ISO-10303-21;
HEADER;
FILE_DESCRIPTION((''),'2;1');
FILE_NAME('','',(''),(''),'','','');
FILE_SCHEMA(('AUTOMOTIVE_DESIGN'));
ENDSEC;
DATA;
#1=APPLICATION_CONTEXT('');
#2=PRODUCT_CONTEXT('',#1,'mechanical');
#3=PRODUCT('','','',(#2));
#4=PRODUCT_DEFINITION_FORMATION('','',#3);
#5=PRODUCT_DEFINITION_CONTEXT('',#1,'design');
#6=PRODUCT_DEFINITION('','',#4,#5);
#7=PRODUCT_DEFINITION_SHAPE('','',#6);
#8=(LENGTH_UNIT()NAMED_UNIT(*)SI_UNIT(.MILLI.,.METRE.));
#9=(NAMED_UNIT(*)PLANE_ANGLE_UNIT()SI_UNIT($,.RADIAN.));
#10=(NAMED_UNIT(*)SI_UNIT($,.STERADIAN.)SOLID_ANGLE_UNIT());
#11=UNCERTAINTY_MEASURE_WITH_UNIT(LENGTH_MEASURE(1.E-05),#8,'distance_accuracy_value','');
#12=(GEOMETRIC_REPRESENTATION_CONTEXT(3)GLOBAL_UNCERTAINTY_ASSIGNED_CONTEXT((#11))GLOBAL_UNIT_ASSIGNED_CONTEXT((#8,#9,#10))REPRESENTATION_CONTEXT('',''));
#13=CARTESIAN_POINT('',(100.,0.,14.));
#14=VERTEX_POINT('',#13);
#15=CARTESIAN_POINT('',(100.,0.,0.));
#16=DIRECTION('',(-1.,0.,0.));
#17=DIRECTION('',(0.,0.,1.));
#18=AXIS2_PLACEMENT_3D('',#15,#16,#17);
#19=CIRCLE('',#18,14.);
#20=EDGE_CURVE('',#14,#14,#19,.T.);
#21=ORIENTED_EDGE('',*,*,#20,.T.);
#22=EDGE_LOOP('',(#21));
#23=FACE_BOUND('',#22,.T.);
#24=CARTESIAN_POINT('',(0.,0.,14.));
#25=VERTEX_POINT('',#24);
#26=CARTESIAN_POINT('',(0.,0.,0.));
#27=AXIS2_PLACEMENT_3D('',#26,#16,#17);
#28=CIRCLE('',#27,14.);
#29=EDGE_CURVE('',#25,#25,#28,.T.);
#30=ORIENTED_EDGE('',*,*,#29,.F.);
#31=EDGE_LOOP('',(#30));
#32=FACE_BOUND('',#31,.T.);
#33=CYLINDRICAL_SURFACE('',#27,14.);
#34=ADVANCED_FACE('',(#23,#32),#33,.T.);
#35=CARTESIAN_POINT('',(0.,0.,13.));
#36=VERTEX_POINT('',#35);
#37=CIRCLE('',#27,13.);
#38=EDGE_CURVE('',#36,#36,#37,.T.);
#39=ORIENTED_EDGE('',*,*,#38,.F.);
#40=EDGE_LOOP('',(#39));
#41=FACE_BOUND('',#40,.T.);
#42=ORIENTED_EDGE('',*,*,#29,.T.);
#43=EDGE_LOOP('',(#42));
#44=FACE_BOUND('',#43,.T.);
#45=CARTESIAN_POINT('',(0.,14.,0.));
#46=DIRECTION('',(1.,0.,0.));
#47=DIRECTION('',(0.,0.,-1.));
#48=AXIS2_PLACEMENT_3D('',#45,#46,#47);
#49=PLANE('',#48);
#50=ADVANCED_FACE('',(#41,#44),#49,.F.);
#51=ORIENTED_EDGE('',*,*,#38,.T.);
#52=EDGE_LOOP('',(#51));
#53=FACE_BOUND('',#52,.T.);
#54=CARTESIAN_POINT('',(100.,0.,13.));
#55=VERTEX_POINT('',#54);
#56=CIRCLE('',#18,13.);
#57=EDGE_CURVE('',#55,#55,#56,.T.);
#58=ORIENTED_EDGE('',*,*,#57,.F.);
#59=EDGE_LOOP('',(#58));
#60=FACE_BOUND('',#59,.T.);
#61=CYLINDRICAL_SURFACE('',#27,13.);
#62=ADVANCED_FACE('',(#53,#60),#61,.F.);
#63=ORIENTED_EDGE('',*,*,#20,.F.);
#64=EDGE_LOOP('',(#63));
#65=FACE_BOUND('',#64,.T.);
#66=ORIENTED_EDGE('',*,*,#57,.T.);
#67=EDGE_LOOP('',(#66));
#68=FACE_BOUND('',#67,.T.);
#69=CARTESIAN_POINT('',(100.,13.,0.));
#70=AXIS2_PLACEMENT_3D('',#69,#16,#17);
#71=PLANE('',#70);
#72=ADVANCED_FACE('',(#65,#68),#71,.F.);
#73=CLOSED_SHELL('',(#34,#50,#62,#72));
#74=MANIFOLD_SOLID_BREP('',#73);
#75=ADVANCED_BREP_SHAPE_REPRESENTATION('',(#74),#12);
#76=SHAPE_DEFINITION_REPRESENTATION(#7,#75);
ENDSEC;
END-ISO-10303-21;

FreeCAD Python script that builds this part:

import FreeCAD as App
import Part
import Sketcher


def add_polygon(sketch, points):
    """Adds a closed chain of lines whose ends are joined by coincident constraints."""
    first, n = sketch.GeometryCount, len(points)
    for a, b in zip(points, points[1:] + points[:1]):
        sketch.addGeometry(Part.LineSegment(App.Vector(*a, 0), App.Vector(*b, 0)), False)
    for i in range(n):
        sketch.addConstraint(Sketcher.Constraint("Coincident", first + i, 2, first + (i + 1) % n, 1))

doc = App.newDocument("Part")
body = doc.addObject("PartDesign::Body", "Body")

sketch1 = body.newObject("Sketcher::SketchObject", "Sketch")
sketch1.AttachmentSupport = (doc.getObject("XY_Plane"), [""])
sketch1.MapMode = "FlatFace"
add_polygon(sketch1, [(0, 14), (0, 13), (100, 13), (100, 14)])
sketch1.addConstraint([
    Sketcher.Constraint("Vertical", 0),
    Sketcher.Constraint("Horizontal", 1),
    Sketcher.Constraint("Vertical", 2),
    Sketcher.Constraint("Horizontal", 3),
    Sketcher.Constraint("PointOnObject", 0, 2, -2),
    Sketcher.Constraint("DistanceX", 1, 1, 1, 2, 100.0),
    Sketcher.Constraint("DistanceY", 0, 2, 0, 1, 1.0),
    Sketcher.Constraint("DistanceY", -1, 1, 0, 2, 13.0),
])
revolution = body.newObject("PartDesign::Revolution", "Revolution")
revolution.Profile = sketch1
revolution.ReferenceAxis = (sketch1, ["H_Axis"])
revolution.Angle = 360

doc.recompute()
